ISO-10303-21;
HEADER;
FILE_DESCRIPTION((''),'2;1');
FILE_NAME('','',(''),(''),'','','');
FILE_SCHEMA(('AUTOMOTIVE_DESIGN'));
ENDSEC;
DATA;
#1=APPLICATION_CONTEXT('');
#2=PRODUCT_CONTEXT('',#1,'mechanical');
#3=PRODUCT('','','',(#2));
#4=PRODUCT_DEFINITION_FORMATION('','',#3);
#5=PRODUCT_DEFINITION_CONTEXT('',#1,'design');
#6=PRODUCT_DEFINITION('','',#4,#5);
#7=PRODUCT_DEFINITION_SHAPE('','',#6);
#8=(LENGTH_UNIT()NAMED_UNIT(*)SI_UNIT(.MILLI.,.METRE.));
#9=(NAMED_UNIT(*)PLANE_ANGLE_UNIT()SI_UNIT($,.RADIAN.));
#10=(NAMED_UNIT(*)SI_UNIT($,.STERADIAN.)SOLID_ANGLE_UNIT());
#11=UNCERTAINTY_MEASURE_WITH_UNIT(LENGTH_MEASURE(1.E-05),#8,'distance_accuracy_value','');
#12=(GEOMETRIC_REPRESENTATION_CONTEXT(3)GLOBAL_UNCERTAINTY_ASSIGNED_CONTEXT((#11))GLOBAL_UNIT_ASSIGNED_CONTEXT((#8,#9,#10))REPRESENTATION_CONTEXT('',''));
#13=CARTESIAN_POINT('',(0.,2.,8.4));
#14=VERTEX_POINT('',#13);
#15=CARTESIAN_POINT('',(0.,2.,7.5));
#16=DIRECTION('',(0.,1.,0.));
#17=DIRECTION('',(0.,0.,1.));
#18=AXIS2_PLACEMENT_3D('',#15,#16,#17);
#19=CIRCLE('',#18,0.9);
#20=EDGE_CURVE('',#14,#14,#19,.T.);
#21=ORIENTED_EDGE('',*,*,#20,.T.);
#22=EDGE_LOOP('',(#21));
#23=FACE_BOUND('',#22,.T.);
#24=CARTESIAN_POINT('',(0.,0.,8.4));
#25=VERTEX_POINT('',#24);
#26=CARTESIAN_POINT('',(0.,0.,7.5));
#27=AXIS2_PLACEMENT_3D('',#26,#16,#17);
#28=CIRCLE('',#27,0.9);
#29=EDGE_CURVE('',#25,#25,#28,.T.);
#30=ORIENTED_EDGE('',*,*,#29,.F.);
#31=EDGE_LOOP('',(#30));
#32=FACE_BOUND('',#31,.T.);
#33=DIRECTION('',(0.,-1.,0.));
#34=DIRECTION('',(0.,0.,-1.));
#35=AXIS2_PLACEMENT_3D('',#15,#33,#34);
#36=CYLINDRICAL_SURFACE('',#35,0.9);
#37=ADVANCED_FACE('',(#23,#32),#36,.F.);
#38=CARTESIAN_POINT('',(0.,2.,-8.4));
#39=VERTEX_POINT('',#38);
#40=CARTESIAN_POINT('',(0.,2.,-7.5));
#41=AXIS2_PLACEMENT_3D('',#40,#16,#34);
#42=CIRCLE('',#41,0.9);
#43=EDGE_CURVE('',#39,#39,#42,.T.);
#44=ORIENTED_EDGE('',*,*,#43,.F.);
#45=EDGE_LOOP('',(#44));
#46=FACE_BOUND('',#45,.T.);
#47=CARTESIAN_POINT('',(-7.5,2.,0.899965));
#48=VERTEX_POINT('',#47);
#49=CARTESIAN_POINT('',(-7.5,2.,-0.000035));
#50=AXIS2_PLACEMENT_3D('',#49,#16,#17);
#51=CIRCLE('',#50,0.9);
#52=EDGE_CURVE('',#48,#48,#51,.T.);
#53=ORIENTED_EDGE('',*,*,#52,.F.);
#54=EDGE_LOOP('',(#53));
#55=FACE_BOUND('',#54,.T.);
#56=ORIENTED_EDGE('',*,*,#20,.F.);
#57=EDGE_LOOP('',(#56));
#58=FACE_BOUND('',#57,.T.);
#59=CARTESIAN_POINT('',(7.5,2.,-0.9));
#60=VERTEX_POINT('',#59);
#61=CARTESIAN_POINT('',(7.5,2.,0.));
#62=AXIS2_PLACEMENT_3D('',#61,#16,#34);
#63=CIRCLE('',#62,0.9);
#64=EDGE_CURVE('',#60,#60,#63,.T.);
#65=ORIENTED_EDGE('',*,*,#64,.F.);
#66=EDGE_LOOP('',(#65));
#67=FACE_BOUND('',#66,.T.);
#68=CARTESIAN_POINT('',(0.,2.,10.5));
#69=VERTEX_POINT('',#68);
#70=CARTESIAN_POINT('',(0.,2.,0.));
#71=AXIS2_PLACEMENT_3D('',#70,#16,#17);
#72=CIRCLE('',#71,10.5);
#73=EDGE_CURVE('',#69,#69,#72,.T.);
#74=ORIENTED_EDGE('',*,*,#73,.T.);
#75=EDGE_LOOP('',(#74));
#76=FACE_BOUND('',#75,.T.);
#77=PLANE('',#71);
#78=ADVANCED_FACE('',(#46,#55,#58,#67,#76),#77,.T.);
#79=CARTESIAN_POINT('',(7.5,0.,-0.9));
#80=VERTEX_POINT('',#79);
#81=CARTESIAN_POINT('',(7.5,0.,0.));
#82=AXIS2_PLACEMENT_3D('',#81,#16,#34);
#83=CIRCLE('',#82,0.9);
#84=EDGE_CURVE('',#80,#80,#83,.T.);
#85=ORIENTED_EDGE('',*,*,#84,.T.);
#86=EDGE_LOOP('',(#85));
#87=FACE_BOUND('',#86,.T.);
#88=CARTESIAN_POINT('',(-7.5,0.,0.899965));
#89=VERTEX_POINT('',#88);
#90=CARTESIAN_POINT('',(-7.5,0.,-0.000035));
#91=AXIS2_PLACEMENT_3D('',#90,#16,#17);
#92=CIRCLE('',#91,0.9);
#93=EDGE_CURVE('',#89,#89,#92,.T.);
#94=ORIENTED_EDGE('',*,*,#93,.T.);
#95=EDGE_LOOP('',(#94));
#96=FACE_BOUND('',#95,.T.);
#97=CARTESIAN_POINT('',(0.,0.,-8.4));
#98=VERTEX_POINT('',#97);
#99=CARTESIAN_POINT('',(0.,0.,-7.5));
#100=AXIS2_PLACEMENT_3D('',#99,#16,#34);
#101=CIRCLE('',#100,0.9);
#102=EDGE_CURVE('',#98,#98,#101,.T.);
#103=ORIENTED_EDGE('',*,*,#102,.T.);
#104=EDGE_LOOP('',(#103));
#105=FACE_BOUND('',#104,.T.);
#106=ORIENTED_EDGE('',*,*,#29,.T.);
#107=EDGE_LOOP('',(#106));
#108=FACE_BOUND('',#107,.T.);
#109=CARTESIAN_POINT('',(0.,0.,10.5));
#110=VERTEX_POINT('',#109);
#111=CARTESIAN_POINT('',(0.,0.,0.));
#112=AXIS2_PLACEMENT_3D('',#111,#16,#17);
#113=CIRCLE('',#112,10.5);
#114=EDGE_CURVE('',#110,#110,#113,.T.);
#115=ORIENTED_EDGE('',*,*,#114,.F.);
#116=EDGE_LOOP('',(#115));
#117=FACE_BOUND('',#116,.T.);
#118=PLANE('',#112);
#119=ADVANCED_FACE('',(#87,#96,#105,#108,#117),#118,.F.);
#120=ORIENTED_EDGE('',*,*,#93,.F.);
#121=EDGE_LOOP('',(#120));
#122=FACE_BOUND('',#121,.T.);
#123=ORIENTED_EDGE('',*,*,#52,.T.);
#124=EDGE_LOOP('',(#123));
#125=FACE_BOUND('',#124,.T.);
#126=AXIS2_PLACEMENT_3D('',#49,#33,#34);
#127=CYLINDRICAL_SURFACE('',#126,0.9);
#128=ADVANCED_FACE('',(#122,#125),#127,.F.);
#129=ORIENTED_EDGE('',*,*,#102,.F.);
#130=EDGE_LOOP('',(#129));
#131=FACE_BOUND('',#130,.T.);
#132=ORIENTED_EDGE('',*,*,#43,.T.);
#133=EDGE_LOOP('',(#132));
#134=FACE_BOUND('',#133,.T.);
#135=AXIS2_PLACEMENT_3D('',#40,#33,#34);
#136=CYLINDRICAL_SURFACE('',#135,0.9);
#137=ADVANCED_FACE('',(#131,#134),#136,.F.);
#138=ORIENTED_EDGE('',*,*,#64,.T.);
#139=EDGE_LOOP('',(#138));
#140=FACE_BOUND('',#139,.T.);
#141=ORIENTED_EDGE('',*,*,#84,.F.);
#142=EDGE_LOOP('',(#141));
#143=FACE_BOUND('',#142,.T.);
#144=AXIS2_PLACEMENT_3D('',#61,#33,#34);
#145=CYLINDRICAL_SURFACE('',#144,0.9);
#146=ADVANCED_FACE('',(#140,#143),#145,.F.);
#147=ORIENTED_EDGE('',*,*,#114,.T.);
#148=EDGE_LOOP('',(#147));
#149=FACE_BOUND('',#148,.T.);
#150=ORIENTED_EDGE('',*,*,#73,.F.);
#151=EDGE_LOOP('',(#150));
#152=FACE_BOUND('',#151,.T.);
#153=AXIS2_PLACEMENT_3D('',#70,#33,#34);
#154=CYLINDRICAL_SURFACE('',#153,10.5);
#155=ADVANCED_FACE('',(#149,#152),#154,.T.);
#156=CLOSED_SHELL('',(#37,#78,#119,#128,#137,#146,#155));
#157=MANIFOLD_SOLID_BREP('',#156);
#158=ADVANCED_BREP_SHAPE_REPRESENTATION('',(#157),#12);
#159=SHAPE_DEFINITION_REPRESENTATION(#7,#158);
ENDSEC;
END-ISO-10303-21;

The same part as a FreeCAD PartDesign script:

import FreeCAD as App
import Part
import Sketcher
from FreeCAD import Vector
Q = App.Units.Quantity

doc = App.newDocument("Part")
body = doc.addObject("PartDesign::Body", "Body")

# Sketch on XZ plane
sketch1 = doc.addObject("Sketcher::SketchObject", "Sketch")
body.addObject(sketch1)
sketch1.AttachmentSupport = (doc.XZ_Plane, [""])
sketch1.MapMode = "FlatFace"
sketch1.addGeometry([
    Part.Circle(Vector(0, 0, 0), Vector(0, 0, 1), 10.5),  # 0
    Part.Circle(Vector(0, 7.5, 0), Vector(0, 0, 1), 0.9),  # 1
    Part.Circle(Vector(-7.5, -0.000035, 0), Vector(0, 0, 1), 0.9),  # 2
    Part.Circle(Vector(0, -7.5, 0), Vector(0, 0, 1), 0.9),  # 3
    Part.Circle(Vector(7.5, 0, 0), Vector(0, 0, 1), 0.9),  # 4
], False)
sketch1.addConstraint([
    Sketcher.Constraint("Coincident", 0, 3, -1, 1),
    Sketcher.Constraint("Equal", 1, 2),
    Sketcher.Constraint("Equal", 2, 3),
    Sketcher.Constraint("Equal", 3, 4),
    Sketcher.Constraint("Symmetric", 1, 3, 3, 3, -1, 1),
    Sketcher.Constraint("PointOnObject", 1, 3, -2),
    Sketcher.Constraint("PointOnObject", 4, 3, -1),
    Sketcher.Constraint("Diameter", 0, Q("21 mm")),
    Sketcher.Constraint("Diameter", 1, Q("1.8 mm")),
    Sketcher.Constraint("DistanceY", 3, 3, 1, 3, Q("15 mm")),
    Sketcher.Constraint("DistanceX", 2, 3, 4, 3, Q("15 mm")),
    Sketcher.Constraint("DistanceX", 2, 3, -1, 1, Q("7.5 mm")),
    Sketcher.Constraint("DistanceY", 2, 3, 1, 3, Q("7.500035 mm")),
])
pad1 = doc.addObject("PartDesign::Pad", "Pad")
body.addObject(pad1)
pad1.Profile = sketch1
pad1.Length = 2
pad1.Reversed = True

doc.recompute()
